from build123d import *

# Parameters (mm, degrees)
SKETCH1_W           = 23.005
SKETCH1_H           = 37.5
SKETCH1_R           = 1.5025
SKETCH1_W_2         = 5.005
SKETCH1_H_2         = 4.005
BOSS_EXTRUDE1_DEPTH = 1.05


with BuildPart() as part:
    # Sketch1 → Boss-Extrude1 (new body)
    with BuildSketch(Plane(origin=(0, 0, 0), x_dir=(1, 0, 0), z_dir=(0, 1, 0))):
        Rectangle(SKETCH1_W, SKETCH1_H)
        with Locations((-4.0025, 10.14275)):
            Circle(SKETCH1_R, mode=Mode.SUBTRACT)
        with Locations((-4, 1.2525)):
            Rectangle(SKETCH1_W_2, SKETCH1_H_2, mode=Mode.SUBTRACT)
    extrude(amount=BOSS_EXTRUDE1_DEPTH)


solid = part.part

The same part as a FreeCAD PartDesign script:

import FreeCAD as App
import Part
import Sketcher
Q = App.Units.Quantity


def add_polygon(sketch, points):
    """Adds a closed chain of lines whose ends are joined by coincident constraints."""
    first, n = sketch.GeometryCount, len(points)
    for a, b in zip(points, points[1:] + points[:1]):
        sketch.addGeometry(Part.LineSegment(App.Vector(*a, 0), App.Vector(*b, 0)), False)
    for i in range(n):
        sketch.addConstraint(Sketcher.Constraint("Coincident", first + i, 2, first + (i + 1) % n, 1))

doc = App.newDocument("Part")
params = doc.addObject("Spreadsheet::Sheet", "Params")
for row, (alias, value) in enumerate([
    ("sketch1_height", "37.5 mm"),
    ("pad1_length", "1.05 mm"),
], start=1):
    params.set(f"A{row}", alias)
    params.set(f"B{row}", "=" + value)
    params.setAlias(f"B{row}", alias)

body = doc.addObject("PartDesign::Body", "Body")

# Sketch on XZ plane
sketch1 = body.newObject("Sketcher::SketchObject", "Sketch")
sketch1.AttachmentSupport = (doc.getObject("XZ_Plane"), [""])
sketch1.MapMode = "FlatFace"
add_polygon(sketch1, [(-11.5, -18.8), (-11.5, 18.8), (11.5, 18.8), (11.5, -18.8)])  # lines 0-3
add_polygon(sketch1, [(-1.5, 0.8), (-6.5, 0.8), (-6.5, -3.3), (-1.5, -3.3)])  # lines 4-7
sketch1.addGeometry(Part.Circle(App.Vector(-4, -10.1, 0), App.Vector(0, 0, 1), 1.5), False)  # 8
sketch1.addConstraint(Sketcher.Constraint("Vertical", 0))
sketch1.addConstraint(Sketcher.Constraint("Horizontal", 1))
sketch1.addConstraint(Sketcher.Constraint("Vertical", 2))
sketch1.addConstraint(Sketcher.Constraint("Horizontal", 3))
sketch1.addConstraint(Sketcher.Constraint("Horizontal", 4))
sketch1.addConstraint(Sketcher.Constraint("Vertical", 5))
sketch1.addConstraint(Sketcher.Constraint("Horizontal", 6))
sketch1.addConstraint(Sketcher.Constraint("Vertical", 7))
sketch1.addConstraint(Sketcher.Constraint("Symmetric", 0, 2, 2, 2, -1, 1))
sketch1.addConstraint(Sketcher.Constraint("Diameter", 8, Q("3.005 mm")))
sketch1.addConstraint(Sketcher.Constraint("DistanceY", 0, 1, 0, 2, Q("37.5 mm")))
sketch1.addConstraint(Sketcher.Constraint("DistanceX", 0, 2, 4, 2, Q("5 mm")))
sketch1.addConstraint(Sketcher.Constraint("DistanceY", 4, 2, 0, 2, Q("18 mm")))
sketch1.addConstraint(Sketcher.Constraint("DistanceX", 6, 2, 2, 2, Q("13 mm")))
sketch1.addConstraint(Sketcher.Constraint("DistanceX", 0, 2, 8, 3, Q("7.5 mm")))
sketch1.addConstraint(Sketcher.Constraint("DistanceX", 1, 1, 1, 2, Q("23.005 mm")))
sketch1.addConstraint(Sketcher.Constraint("DistanceY", 5, 2, 5, 1, Q("4.005 mm")))
sketch1.addConstraint(Sketcher.Constraint("DistanceY", 8, 3, -1, 1, Q("10.14275 mm")))
sketch1.setExpression("Constraints[18]", "Params.sketch1_height")
pad1 = body.newObject("PartDesign::Pad", "Pad")
pad1.Profile = sketch1
pad1.setExpression("Length", "Params.pad1_length")
pad1.Reversed = True

doc.recompute()
